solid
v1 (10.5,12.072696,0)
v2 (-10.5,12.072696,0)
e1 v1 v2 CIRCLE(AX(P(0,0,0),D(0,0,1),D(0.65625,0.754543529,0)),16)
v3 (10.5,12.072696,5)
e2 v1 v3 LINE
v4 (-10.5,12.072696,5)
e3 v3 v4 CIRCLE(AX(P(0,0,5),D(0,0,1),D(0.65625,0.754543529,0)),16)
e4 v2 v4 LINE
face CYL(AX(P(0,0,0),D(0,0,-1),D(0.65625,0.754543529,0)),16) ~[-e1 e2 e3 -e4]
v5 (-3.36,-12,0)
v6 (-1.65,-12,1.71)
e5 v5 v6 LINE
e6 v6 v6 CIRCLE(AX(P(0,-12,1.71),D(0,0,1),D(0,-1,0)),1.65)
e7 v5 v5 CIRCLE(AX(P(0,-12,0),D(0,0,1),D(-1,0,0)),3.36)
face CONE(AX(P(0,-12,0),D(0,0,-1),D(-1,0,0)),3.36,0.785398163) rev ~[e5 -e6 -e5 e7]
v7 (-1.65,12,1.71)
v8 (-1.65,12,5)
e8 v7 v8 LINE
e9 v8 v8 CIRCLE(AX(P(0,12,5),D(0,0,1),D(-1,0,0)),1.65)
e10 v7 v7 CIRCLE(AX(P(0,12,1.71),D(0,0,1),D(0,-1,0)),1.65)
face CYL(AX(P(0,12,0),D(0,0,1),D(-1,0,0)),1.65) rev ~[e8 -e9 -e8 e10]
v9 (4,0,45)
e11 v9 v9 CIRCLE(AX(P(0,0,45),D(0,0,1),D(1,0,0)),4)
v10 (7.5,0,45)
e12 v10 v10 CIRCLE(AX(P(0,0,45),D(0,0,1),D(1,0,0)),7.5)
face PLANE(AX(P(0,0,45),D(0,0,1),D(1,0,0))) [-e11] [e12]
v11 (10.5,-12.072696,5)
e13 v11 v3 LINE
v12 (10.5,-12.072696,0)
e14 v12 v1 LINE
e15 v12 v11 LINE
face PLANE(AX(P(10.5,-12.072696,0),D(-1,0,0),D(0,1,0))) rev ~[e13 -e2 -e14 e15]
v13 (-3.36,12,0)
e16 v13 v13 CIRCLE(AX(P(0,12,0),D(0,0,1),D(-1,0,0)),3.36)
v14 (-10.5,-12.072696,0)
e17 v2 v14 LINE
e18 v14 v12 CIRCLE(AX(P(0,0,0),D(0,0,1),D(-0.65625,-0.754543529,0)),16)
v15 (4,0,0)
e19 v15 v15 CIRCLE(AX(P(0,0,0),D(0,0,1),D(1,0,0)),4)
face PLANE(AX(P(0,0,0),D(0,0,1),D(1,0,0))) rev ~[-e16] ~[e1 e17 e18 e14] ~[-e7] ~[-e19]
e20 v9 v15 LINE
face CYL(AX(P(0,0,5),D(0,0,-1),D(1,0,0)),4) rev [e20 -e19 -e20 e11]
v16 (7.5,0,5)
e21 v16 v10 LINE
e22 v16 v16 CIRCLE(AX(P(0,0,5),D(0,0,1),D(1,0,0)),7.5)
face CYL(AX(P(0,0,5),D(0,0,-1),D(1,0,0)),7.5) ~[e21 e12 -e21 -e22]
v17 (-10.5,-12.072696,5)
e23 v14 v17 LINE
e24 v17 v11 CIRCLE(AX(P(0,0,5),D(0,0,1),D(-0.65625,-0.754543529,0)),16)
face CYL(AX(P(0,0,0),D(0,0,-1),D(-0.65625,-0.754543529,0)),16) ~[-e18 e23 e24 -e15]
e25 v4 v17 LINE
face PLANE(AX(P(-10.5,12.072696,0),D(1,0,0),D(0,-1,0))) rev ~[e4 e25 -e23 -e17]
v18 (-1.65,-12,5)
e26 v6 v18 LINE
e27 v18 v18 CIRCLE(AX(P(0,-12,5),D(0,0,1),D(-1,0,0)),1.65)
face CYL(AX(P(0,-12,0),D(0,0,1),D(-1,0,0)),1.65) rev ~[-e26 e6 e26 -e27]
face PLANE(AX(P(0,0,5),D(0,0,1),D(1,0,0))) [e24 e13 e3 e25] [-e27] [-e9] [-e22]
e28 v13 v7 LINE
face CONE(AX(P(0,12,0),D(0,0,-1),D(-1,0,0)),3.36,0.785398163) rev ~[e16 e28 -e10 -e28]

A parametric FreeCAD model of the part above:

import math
import FreeCAD as App
import Part
import Sketcher
from FreeCAD import Vector
Q = App.Units.Quantity

doc = App.newDocument("Part")
body = doc.addObject("PartDesign::Body", "Body")

# Sketch on XY plane
sketch1 = body.newObject("Sketcher::SketchObject", "Sketch")
sketch1.AttachmentSupport = (doc.getObject("XY_Plane"), [""])
sketch1.MapMode = "FlatFace"
sketch1.addGeometry([
    Part.ArcOfCircle(Part.Circle(Vector(0, 0, 0), Vector(0, 0, 1), 16), math.radians(49), math.radians(131)),  # 0
    Part.LineSegment(Vector(-10.5, 12.1, 0), Vector(-10.5, -12.1, 0)),  # 1
    Part.ArcOfCircle(Part.Circle(Vector(0, 0, 0), Vector(0, 0, 1), 16), math.radians(-131), math.radians(-49)),  # 2
    Part.LineSegment(Vector(10.5, -12.1, 0), Vector(10.5, 12.1, 0)),  # 3
    Part.Circle(Vector(0, 0, 0), Vector(0, 0, 1), 4),  # 4
], False)
sketch1.addConstraint([
    Sketcher.Constraint("Coincident", 0, 2, 1, 1),
    Sketcher.Constraint("Coincident", 1, 2, 2, 1),
    Sketcher.Constraint("Coincident", 2, 2, 3, 1),
    Sketcher.Constraint("Coincident", 3, 2, 0, 1),
    Sketcher.Constraint("Vertical", 1),
    Sketcher.Constraint("Vertical", 3),
    Sketcher.Constraint("Coincident", 0, 3, -1, 1),
    Sketcher.Constraint("Coincident", 2, 3, -1, 1),
    Sketcher.Constraint("Coincident", 4, 3, -1, 1),
    Sketcher.Constraint("Equal", 0, 2),
    Sketcher.Constraint("Horizontal", 1, 2, 2, 2),
    Sketcher.Constraint("Diameter", 4, Q("8 mm")),
    Sketcher.Constraint("Radius", 0, Q("16 mm")),
    Sketcher.Constraint("DistanceX", 1, 2, 2, 2, Q("21 mm")),
])
pad1 = body.newObject("PartDesign::Pad", "Pad")
pad1.Profile = sketch1
pad1.Length = 5

# Sketch on XY plane
sketch2 = body.newObject("Sketcher::SketchObject", "Sketch001")
sketch2.AttachmentSupport = (doc.getObject("XY_Plane"), [""])
sketch2.MapMode = "FlatFace"
sketch2.addGeometry([
    Part.Circle(Vector(0, 12, 0), Vector(0, 0, 1), 1.6),
    Part.Circle(Vector(0, -12, 0), Vector(0, 0, 1), 1.6),
], False)
sketch2.addConstraint([
    Sketcher.Constraint("Equal", 0, 1),
    Sketcher.Constraint("Symmetric", 0, 3, 1, 3, -1, 1),
    Sketcher.Constraint("PointOnObject", 0, 3, -2),
    Sketcher.Constraint("Diameter", 0, Q("3.3 mm")),
    Sketcher.Constraint("DistanceY", -1, 1, 0, 3, Q("12 mm")),
])
doc.recompute()
hole = body.newObject("PartDesign::Hole", "Hole")
hole.Profile = sketch2
hole.ThreadType = "None"
hole.Diameter = 3.3
hole.DepthType = "Dimension"
hole.Depth = 10
hole.DrillPoint = "Angled"
hole.DrillPointAngle = 118
hole.HoleCutType = "Countersink"
hole.HoleCutDiameter = 6.72
hole.HoleCutCountersinkAngle = 90
hole.Reversed = True

# Sketch on XY plane
sketch3 = body.newObject("Sketcher::SketchObject", "Sketch002")
sketch3.AttachmentSupport = (doc.getObject("XY_Plane"), [""])
sketch3.MapMode = "FlatFace"
sketch3.AttachmentOffset = App.Placement(Vector(0, 0, 5), App.Rotation())
sketch3.addGeometry([
    Part.Circle(Vector(0, 0, 0), Vector(0, 0, 1), 7.5),
    Part.Circle(Vector(0, 0, 0), Vector(0, 0, 1), 4),
], False)
sketch3.addConstraint([
    Sketcher.Constraint("Coincident", 0, 3, -1, 1),
    Sketcher.Constraint("Coincident", 1, 3, -1, 1),
    Sketcher.Constraint("Diameter", 0, Q("15 mm")),
    Sketcher.Constraint("Diameter", 1, Q("8 mm")),
])
pad2 = body.newObject("PartDesign::Pad", "Pad001")
pad2.Profile = sketch3
pad2.Length = 40

doc.recompute()
